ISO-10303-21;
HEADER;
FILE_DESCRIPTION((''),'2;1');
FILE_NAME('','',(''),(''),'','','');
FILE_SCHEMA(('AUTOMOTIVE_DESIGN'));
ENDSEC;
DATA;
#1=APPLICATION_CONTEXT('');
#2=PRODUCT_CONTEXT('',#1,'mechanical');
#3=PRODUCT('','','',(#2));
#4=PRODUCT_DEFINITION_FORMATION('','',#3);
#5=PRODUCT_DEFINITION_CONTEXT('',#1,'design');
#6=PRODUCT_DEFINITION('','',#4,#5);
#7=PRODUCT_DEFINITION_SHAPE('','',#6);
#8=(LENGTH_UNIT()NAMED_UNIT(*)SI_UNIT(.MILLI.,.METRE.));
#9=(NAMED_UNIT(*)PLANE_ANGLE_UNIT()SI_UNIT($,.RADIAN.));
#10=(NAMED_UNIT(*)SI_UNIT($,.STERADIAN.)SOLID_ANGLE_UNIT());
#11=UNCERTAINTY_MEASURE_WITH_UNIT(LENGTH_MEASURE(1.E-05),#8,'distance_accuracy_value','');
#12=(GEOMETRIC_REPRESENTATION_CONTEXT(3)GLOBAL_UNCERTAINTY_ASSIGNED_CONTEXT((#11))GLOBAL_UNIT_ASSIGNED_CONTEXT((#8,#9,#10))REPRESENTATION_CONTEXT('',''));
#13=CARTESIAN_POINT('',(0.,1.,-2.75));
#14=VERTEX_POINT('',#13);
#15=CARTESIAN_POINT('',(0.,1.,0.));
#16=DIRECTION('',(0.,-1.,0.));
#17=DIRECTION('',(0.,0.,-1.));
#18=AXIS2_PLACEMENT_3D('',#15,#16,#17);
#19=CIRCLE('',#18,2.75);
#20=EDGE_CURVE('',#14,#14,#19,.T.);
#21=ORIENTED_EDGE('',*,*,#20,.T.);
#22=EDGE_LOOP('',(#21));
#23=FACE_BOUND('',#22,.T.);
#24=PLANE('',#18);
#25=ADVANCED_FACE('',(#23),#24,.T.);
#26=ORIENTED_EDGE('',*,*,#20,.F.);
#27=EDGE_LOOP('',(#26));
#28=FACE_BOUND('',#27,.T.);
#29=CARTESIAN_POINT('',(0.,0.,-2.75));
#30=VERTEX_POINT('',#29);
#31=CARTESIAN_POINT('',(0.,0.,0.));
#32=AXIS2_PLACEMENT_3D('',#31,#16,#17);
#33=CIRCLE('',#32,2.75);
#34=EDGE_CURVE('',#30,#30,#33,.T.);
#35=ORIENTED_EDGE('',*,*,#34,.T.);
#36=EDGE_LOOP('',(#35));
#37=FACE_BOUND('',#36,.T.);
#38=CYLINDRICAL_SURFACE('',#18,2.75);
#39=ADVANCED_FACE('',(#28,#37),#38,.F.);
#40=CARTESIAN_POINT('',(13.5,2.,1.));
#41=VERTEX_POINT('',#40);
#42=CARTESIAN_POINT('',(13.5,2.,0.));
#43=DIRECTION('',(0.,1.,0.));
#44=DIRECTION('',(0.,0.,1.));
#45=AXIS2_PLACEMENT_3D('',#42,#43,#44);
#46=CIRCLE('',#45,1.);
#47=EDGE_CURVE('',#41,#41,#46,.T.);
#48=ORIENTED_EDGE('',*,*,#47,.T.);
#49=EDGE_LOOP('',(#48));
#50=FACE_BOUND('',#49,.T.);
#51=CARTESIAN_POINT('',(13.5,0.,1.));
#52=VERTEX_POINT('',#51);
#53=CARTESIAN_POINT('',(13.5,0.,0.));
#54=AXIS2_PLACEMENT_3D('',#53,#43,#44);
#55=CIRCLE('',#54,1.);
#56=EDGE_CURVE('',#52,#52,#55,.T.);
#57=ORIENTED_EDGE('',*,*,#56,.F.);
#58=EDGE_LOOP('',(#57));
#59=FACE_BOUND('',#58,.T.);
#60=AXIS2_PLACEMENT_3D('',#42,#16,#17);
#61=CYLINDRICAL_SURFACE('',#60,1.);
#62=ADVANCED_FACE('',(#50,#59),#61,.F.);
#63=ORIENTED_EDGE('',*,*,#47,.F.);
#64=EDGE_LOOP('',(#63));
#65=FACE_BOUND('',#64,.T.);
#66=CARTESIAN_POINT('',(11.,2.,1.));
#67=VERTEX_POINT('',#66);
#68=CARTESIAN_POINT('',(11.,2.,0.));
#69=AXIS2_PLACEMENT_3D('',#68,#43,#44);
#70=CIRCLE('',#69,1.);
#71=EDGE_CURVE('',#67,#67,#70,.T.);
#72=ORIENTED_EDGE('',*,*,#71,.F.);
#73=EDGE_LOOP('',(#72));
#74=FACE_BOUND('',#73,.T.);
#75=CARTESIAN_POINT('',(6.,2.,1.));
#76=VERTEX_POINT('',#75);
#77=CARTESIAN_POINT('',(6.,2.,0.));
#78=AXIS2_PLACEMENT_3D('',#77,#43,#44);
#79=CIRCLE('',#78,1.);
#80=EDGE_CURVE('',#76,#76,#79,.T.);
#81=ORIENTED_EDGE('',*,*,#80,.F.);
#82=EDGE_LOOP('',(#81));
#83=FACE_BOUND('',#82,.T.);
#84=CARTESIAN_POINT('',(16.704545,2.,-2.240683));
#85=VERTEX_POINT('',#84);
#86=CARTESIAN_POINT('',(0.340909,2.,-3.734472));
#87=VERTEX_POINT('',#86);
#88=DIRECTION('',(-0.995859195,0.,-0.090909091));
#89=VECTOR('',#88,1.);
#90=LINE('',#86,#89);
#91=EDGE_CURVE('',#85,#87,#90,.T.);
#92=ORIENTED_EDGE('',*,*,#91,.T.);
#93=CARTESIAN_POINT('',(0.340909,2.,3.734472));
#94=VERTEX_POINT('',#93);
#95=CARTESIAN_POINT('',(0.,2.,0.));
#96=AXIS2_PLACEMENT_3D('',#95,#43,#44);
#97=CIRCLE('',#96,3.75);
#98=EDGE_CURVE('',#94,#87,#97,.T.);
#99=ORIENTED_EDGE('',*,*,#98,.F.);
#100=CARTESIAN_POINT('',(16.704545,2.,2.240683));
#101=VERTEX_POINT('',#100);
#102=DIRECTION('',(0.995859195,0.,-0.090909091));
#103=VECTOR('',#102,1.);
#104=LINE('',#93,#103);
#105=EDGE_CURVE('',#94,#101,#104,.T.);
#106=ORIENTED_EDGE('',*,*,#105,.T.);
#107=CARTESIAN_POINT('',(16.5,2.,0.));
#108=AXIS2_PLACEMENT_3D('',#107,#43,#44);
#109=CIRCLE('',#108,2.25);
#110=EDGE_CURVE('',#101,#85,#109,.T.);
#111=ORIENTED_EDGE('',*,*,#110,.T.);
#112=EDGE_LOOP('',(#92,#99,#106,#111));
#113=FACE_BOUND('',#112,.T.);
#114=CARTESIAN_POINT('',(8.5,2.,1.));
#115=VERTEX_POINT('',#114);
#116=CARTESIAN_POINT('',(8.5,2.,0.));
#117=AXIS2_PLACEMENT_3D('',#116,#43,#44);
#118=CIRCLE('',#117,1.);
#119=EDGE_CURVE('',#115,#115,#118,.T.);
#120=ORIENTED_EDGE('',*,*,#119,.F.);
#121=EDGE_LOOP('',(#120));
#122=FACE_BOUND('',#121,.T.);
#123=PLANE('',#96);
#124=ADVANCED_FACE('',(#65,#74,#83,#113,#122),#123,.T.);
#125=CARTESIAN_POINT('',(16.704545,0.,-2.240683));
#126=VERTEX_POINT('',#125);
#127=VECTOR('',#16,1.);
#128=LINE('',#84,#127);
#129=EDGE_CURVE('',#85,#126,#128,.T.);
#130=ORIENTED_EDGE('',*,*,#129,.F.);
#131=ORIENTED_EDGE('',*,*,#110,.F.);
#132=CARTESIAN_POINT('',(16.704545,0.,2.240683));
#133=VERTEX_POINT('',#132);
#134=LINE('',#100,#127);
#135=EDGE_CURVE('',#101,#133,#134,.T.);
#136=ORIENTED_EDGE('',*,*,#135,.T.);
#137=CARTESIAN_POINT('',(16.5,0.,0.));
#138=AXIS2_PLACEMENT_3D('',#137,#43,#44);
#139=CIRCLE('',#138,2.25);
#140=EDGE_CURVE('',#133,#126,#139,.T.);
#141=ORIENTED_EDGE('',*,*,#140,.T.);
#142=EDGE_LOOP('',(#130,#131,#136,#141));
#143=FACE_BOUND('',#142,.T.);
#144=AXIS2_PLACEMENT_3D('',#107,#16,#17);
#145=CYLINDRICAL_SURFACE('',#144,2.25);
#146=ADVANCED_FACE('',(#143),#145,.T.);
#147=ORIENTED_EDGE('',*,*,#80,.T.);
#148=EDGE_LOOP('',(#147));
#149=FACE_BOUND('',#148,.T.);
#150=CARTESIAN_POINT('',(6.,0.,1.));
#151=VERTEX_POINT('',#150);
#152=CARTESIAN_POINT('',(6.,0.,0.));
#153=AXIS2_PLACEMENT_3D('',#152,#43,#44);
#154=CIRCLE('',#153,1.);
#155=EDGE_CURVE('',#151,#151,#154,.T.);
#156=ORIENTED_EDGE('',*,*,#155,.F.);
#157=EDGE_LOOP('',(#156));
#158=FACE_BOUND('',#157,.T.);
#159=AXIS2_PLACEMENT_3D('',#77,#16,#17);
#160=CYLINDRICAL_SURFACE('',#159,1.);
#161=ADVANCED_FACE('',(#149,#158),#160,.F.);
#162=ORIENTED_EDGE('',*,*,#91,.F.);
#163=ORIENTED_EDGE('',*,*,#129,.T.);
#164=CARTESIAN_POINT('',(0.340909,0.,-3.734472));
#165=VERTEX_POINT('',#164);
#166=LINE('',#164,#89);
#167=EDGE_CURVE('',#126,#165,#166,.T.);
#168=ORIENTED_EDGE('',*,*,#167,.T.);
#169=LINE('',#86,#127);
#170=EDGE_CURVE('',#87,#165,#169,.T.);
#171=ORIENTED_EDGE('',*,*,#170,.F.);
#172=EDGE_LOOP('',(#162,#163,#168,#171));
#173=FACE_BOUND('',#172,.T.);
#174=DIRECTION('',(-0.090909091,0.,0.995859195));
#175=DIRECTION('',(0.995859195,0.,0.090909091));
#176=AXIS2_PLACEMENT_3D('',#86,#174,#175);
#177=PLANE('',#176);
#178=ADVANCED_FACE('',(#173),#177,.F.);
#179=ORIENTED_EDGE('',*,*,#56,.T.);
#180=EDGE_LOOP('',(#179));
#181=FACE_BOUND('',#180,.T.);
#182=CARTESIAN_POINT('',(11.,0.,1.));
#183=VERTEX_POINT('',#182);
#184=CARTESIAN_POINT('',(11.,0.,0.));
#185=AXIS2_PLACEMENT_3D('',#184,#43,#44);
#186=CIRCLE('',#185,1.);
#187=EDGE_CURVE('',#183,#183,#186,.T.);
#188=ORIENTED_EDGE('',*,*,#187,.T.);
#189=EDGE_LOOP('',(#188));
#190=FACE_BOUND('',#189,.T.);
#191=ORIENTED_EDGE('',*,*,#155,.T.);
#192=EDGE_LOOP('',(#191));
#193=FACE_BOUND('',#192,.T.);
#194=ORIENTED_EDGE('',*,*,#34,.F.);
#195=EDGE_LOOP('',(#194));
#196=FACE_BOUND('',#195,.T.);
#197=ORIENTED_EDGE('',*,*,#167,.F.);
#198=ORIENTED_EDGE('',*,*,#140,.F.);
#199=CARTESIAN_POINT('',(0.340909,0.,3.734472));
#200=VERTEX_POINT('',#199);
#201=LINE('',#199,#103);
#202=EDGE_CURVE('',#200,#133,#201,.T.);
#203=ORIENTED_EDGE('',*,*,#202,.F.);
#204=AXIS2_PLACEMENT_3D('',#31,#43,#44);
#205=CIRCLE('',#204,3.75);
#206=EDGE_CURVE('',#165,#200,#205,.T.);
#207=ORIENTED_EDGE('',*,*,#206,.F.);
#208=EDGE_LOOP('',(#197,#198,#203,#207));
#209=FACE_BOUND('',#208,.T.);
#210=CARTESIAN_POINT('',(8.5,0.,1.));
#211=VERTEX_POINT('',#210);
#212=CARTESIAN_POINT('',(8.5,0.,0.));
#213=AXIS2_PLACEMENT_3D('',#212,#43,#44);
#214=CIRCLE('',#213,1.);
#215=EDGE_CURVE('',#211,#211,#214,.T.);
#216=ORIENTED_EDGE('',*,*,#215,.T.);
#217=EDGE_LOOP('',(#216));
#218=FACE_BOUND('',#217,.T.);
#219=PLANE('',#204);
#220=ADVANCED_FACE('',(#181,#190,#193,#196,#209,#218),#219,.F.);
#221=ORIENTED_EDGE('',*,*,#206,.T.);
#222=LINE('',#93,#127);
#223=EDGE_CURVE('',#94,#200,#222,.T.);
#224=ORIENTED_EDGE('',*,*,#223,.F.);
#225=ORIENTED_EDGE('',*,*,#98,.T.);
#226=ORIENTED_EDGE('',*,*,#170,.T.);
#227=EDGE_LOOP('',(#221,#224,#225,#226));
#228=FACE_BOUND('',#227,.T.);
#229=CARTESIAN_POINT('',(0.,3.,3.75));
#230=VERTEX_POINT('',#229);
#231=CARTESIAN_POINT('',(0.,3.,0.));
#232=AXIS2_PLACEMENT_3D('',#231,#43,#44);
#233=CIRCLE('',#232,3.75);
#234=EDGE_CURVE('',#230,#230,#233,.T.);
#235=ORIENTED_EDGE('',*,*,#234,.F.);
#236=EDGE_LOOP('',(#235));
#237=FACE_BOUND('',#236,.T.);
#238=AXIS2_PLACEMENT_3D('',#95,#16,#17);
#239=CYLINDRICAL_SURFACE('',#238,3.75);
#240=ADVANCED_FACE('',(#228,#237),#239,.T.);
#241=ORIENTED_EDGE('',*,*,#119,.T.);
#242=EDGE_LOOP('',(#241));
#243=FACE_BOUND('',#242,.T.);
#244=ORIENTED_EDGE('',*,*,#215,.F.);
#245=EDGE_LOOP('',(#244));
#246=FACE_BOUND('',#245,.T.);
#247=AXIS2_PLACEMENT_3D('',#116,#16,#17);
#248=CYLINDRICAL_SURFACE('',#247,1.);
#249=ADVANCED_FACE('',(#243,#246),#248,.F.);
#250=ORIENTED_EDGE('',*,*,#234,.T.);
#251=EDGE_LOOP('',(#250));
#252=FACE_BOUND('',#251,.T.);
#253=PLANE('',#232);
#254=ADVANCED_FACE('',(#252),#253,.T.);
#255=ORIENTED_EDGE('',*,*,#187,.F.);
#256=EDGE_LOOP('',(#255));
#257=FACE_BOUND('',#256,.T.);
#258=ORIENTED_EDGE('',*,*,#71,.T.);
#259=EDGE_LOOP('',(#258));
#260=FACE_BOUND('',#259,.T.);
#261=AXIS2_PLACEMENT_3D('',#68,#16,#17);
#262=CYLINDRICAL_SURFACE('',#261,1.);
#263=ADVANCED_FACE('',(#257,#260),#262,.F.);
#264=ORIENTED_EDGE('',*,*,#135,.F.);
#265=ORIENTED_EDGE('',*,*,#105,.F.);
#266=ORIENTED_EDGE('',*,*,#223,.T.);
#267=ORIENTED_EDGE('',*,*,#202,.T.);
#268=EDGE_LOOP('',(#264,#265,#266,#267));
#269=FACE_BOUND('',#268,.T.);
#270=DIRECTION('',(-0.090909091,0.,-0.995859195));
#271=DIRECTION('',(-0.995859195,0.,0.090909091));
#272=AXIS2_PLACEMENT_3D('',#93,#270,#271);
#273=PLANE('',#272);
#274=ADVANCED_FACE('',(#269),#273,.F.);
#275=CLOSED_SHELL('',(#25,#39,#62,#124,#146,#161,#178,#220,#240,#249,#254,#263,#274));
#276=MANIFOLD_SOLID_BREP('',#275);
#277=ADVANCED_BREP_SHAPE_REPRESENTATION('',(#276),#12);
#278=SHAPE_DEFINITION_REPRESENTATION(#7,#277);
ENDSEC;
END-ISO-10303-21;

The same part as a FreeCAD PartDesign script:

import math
import FreeCAD as App
import Part
import Sketcher

V = App.Vector

doc = App.newDocument("Part")
body = doc.addObject("PartDesign::Body", "Body")

sketch1 = body.newObject("Sketcher::SketchObject", "Sketch")
sketch1.AttachmentSupport = (doc.getObject("XZ_Plane"), [""])
sketch1.MapMode = "FlatFace"
sketch1.addGeometry(Part.LineSegment(V(16.7, -2.2, 0), V(0.3, -3.7, 0)), False)
sketch1.addGeometry(Part.ArcOfCircle(Part.Circle(V(0, 0, 0), V(0, 0, 1), 3.8), math.radians(85), math.radians(275)), False)
sketch1.addGeometry(Part.LineSegment(V(0.3, 3.7, 0), V(16.7, 2.2, 0)), False)
sketch1.addGeometry(Part.ArcOfCircle(Part.Circle(V(16.5, 0, 0), V(0, 0, 1), 2.2), math.radians(-85), math.radians(85)), False)
sketch1.addGeometry(Part.Circle(V(13.5, 0, 0), V(0, 0, 1), 1), False)
sketch1.addGeometry(Part.Circle(V(11, 0, 0), V(0, 0, 1), 1), False)
sketch1.addGeometry(Part.Circle(V(8.5, 0, 0), V(0, 0, 1), 1), False)
sketch1.addGeometry(Part.Circle(V(6, 0, 0), V(0, 0, 1), 1), False)
sketch1.addConstraint(Sketcher.Constraint("Tangent", 0, 2, 1, 2))
sketch1.addConstraint(Sketcher.Constraint("Tangent", 1, 1, 2, 1))
sketch1.addConstraint(Sketcher.Constraint("Tangent", 2, 2, 3, 2))
sketch1.addConstraint(Sketcher.Constraint("Tangent", 3, 1, 0, 1))
sketch1.addConstraint(Sketcher.Constraint("Coincident", 1, 3, -1, 1))
sketch1.addConstraint(Sketcher.Constraint("Equal", 4, 5))
sketch1.addConstraint(Sketcher.Constraint("Equal", 5, 6))
sketch1.addConstraint(Sketcher.Constraint("Equal", 6, 7))
sketch1.addConstraint(Sketcher.Constraint("PointOnObject", 3, 3, -1))
sketch1.addConstraint(Sketcher.Constraint("PointOnObject", 4, 3, -1))
sketch1.addConstraint(Sketcher.Constraint("PointOnObject", 5, 3, -1))
sketch1.addConstraint(Sketcher.Constraint("PointOnObject", 6, 3, -1))
sketch1.addConstraint(Sketcher.Constraint("PointOnObject", 7, 3, -1))
sketch1.addConstraint(Sketcher.Constraint("Diameter", 4, 2.0))
sketch1.addConstraint(Sketcher.Constraint("Radius", 1, 3.75))
sketch1.addConstraint(Sketcher.Constraint("Radius", 3, 2.25))
sketch1.addConstraint(Sketcher.Constraint("DistanceX", -1, 1, 5, 3, 11.0))
sketch1.addConstraint(Sketcher.Constraint("DistanceX", -1, 1, 7, 3, 6.0))
sketch1.addConstraint(Sketcher.Constraint("DistanceX", 4, 3, 3, 3, 3.0))
sketch1.addConstraint(Sketcher.Constraint("DistanceX", 6, 3, 4, 3, 5.0))
sketch1.addConstraint(Sketcher.Constraint("DistanceX", -1, 1, 3, 3, 16.5))
pad1 = body.newObject("PartDesign::Pad", "Pad")
pad1.Profile = sketch1
pad1.Length = 2
pad1.Reversed = True

sketch2 = body.newObject("Sketcher::SketchObject", "Sketch001")
sketch2.AttachmentSupport = (doc.getObject("XZ_Plane"), [""])
sketch2.MapMode = "FlatFace"
sketch2.AttachmentOffset = App.Placement(V(0, 0, -2), App.Rotation())
sketch2.addGeometry(Part.Circle(V(0, 0, 0), V(0, 0, 1), 3.8), False)
sketch2.addConstraint(Sketcher.Constraint("Coincident", 0, 3, -1, 1))
sketch2.addConstraint(Sketcher.Constraint("Diameter", 0, 7.5))
pad2 = body.newObject("PartDesign::Pad", "Pad001")
pad2.Profile = sketch2
pad2.Length = 1
pad2.Reversed = True

sketch3 = body.newObject("Sketcher::SketchObject", "Sketch002")
sketch3.AttachmentSupport = (doc.getObject("XZ_Plane"), [""])
sketch3.MapMode = "FlatFace"
sketch3.addGeometry(Part.Circle(V(0, 0, 0), V(0, 0, 1), 2.8), False)
sketch3.addConstraint(Sketcher.Constraint("Coincident", 0, 3, -1, 1))
sketch3.addConstraint(Sketcher.Constraint("Diameter", 0, 5.5))
pocket1 = body.newObject("PartDesign::Pocket", "Pocket")
pocket1.Profile = sketch3
pocket1.Length = 1

doc.recompute()
